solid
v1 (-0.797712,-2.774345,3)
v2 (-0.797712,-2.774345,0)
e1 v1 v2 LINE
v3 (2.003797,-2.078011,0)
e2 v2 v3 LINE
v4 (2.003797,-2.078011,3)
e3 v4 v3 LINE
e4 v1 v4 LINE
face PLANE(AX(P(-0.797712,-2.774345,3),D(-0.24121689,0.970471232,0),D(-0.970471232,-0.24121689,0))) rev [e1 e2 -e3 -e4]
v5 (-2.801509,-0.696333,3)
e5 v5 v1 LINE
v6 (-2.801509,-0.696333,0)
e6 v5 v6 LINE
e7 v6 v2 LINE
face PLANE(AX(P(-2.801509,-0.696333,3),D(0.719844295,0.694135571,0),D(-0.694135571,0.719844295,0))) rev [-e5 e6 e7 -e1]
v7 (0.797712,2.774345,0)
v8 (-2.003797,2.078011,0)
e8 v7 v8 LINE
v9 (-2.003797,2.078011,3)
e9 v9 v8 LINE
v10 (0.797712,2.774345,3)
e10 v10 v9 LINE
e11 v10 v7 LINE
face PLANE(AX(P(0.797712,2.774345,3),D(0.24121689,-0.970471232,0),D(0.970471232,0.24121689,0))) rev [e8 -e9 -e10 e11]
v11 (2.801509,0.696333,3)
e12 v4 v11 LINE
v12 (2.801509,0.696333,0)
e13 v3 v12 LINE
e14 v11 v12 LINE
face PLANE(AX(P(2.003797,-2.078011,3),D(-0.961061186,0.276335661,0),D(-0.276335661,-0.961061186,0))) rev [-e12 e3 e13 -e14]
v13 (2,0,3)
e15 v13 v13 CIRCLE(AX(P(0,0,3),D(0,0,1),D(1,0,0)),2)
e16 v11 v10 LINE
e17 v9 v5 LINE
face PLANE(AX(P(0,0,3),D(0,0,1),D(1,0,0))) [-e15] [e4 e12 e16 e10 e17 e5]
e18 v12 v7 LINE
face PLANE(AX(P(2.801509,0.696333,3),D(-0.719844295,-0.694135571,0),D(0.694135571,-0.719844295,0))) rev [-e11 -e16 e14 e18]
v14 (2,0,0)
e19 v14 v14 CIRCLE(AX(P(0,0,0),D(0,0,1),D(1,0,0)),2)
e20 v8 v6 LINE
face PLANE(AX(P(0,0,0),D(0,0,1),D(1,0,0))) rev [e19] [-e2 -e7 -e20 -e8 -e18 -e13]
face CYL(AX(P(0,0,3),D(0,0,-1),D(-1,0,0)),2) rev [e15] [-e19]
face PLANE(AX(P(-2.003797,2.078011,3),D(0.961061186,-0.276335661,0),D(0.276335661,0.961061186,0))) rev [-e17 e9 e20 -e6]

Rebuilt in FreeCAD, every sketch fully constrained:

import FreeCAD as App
import Part
import Sketcher
Q = App.Units.Quantity


def add_polygon(sketch, points):
    """Adds a closed chain of lines whose ends are joined by coincident constraints."""
    first, n = sketch.GeometryCount, len(points)
    for a, b in zip(points, points[1:] + points[:1]):
        sketch.addGeometry(Part.LineSegment(App.Vector(*a, 0), App.Vector(*b, 0)), False)
    for i in range(n):
        sketch.addConstraint(Sketcher.Constraint("Coincident", first + i, 2, first + (i + 1) % n, 1))

doc = App.newDocument("Part")
body = doc.addObject("PartDesign::Body", "Body")

# Sketch on XY plane
sketch1 = body.newObject("Sketcher::SketchObject", "Sketch")
sketch1.AttachmentSupport = (doc.getObject("XY_Plane"), [""])
sketch1.MapMode = "FlatFace"
add_polygon(sketch1, [(2, -2.1), (2.8, 0.7), (0.8, 2.8), (-2, 2.1), (-2.8, -0.7), (-0.8, -2.8)])  # lines 0-5
sketch1.addGeometry(Part.Circle(App.Vector(0, 0, 0), App.Vector(0, 0, 1), 2), False)  # 6
sketch1.addConstraint([
    Sketcher.Constraint("Coincident", 6, 3, -1, 1),
    Sketcher.Constraint("Symmetric", 0, 2, 3, 2, -1, 1),
    Sketcher.Constraint("Symmetric", 1, 2, 4, 2, -1, 1),
    Sketcher.Constraint("Symmetric", 2, 2, 5, 2, -1, 1),
    Sketcher.Constraint("Equal", 0, 1),
    Sketcher.Constraint("Equal", 1, 2),
    Sketcher.Constraint("Diameter", 6, Q("4 mm")),
    Sketcher.Constraint("Distance", 0, Q("2.886751 mm")),
    Sketcher.Constraint("DistanceX", -1, 1, 0, 2, Q("2.801509 mm")),
    Sketcher.Constraint("DistanceY", -1, 1, 2, 2, Q("2.078011 mm")),
    Sketcher.Constraint("DistanceY", 0, 2, 1, 2, Q("2.078011 mm")),
])
pad1 = body.newObject("PartDesign::Pad", "Pad")
pad1.Profile = sketch1
pad1.Length = 3

doc.recompute()
